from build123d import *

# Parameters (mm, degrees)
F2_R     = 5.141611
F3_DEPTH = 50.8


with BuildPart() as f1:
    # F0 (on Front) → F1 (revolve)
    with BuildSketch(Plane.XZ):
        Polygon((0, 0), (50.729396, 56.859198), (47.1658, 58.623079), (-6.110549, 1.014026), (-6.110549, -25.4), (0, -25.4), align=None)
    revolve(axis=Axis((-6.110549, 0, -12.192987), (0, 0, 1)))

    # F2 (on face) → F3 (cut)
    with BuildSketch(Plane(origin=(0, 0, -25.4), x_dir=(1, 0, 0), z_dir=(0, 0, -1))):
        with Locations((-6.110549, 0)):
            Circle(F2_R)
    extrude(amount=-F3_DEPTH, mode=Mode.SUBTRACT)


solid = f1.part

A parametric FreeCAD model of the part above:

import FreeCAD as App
import Part
import Sketcher

V = App.Vector
Q = App.Units.Quantity


def add_polygon(sketch, points):
    """Adds a closed chain of lines whose ends are joined by coincident constraints."""
    first, n = sketch.GeometryCount, len(points)
    for a, b in zip(points, points[1:] + points[:1]):
        sketch.addGeometry(Part.LineSegment(App.Vector(*a, 0), App.Vector(*b, 0)), False)
    for i in range(n):
        sketch.addConstraint(Sketcher.Constraint("Coincident", first + i, 2, first + (i + 1) % n, 1))

doc = App.newDocument("Part")
body = doc.addObject("PartDesign::Body", "Body")

sketch1 = body.newObject("Sketcher::SketchObject", "Sketch")
sketch1.AttachmentSupport = (doc.getObject("XZ_Plane"), [""])
sketch1.MapMode = "FlatFace"
add_polygon(sketch1, [(0, 0), (50.7, 56.9), (47.2, 58.6), (-6.1, 1), (-6.1, -25.4), (0, -25.4)])
sketch1.addGeometry(Part.LineSegment(V(-6.1, -25.4, 0), V(-6.1, 58.6, 0)), True)
sketch1.addConstraint(Sketcher.Constraint("Vertical", 3))
sketch1.addConstraint(Sketcher.Constraint("Horizontal", 4))
sketch1.addConstraint(Sketcher.Constraint("Vertical", 5))
sketch1.addConstraint(Sketcher.Constraint("Vertical", 6))
sketch1.addConstraint(Sketcher.Constraint("Coincident", 5, 2, -1, 1))
sketch1.addConstraint(Sketcher.Constraint("Coincident", 6, 1, 3, 2))
sketch1.addConstraint(Sketcher.Constraint("Horizontal", 1, 2, 6, 2))
sketch1.addConstraint(Sketcher.Constraint("DistanceY", 5, 1, 5, 2, Q("1 in")))
sketch1.addConstraint(Sketcher.Constraint("Distance", 0, Q("3 in")))
sketch1.addConstraint(Sketcher.Constraint("DistanceX", 4, 1, 4, 2, Q("6.110549 mm")))
sketch1.addConstraint(Sketcher.Constraint("DistanceY", 6, 1, 6, 2, Q("84.023079 mm")))
sketch1.addConstraint(Sketcher.Constraint("DistanceX", -1, 1, 1, 2, Q("47.1658 mm")))
sketch1.addConstraint(Sketcher.Constraint("Distance", 1, Q("3.976241 mm")))
sketch1.addConstraint(Sketcher.Constraint("Distance", 2, Q("78.467652 mm")))
revolution = body.newObject("PartDesign::Revolution", "Revolution")
revolution.Profile = sketch1
revolution.ReferenceAxis = (sketch1, ["Axis0"])
revolution.Angle = 360

sketch2 = body.newObject("Sketcher::SketchObject", "Sketch001")
sketch2.AttachmentSupport = (doc.getObject("XY_Plane"), [""])
sketch2.MapMode = "FlatFace"
sketch2.AttachmentOffset = App.Placement(V(0, 0, -1 * 25.4), App.Rotation())
sketch2.addGeometry(Part.Circle(V(-6, 0, 0), V(0, 0, 1), 5), False)
sketch2.addConstraint(Sketcher.Constraint("PointOnObject", 0, 3, -1))
sketch2.addConstraint(Sketcher.Constraint("Diameter", 0, Q("10.283222 mm")))
sketch2.addConstraint(Sketcher.Constraint("DistanceX", 0, 3, -1, 1, Q("6.110549 mm")))
pocket1 = body.newObject("PartDesign::Pocket", "Pocket")
pocket1.Profile = sketch2
pocket1.Length = Q("2 in")
pocket1.Reversed = True

doc.recompute()
